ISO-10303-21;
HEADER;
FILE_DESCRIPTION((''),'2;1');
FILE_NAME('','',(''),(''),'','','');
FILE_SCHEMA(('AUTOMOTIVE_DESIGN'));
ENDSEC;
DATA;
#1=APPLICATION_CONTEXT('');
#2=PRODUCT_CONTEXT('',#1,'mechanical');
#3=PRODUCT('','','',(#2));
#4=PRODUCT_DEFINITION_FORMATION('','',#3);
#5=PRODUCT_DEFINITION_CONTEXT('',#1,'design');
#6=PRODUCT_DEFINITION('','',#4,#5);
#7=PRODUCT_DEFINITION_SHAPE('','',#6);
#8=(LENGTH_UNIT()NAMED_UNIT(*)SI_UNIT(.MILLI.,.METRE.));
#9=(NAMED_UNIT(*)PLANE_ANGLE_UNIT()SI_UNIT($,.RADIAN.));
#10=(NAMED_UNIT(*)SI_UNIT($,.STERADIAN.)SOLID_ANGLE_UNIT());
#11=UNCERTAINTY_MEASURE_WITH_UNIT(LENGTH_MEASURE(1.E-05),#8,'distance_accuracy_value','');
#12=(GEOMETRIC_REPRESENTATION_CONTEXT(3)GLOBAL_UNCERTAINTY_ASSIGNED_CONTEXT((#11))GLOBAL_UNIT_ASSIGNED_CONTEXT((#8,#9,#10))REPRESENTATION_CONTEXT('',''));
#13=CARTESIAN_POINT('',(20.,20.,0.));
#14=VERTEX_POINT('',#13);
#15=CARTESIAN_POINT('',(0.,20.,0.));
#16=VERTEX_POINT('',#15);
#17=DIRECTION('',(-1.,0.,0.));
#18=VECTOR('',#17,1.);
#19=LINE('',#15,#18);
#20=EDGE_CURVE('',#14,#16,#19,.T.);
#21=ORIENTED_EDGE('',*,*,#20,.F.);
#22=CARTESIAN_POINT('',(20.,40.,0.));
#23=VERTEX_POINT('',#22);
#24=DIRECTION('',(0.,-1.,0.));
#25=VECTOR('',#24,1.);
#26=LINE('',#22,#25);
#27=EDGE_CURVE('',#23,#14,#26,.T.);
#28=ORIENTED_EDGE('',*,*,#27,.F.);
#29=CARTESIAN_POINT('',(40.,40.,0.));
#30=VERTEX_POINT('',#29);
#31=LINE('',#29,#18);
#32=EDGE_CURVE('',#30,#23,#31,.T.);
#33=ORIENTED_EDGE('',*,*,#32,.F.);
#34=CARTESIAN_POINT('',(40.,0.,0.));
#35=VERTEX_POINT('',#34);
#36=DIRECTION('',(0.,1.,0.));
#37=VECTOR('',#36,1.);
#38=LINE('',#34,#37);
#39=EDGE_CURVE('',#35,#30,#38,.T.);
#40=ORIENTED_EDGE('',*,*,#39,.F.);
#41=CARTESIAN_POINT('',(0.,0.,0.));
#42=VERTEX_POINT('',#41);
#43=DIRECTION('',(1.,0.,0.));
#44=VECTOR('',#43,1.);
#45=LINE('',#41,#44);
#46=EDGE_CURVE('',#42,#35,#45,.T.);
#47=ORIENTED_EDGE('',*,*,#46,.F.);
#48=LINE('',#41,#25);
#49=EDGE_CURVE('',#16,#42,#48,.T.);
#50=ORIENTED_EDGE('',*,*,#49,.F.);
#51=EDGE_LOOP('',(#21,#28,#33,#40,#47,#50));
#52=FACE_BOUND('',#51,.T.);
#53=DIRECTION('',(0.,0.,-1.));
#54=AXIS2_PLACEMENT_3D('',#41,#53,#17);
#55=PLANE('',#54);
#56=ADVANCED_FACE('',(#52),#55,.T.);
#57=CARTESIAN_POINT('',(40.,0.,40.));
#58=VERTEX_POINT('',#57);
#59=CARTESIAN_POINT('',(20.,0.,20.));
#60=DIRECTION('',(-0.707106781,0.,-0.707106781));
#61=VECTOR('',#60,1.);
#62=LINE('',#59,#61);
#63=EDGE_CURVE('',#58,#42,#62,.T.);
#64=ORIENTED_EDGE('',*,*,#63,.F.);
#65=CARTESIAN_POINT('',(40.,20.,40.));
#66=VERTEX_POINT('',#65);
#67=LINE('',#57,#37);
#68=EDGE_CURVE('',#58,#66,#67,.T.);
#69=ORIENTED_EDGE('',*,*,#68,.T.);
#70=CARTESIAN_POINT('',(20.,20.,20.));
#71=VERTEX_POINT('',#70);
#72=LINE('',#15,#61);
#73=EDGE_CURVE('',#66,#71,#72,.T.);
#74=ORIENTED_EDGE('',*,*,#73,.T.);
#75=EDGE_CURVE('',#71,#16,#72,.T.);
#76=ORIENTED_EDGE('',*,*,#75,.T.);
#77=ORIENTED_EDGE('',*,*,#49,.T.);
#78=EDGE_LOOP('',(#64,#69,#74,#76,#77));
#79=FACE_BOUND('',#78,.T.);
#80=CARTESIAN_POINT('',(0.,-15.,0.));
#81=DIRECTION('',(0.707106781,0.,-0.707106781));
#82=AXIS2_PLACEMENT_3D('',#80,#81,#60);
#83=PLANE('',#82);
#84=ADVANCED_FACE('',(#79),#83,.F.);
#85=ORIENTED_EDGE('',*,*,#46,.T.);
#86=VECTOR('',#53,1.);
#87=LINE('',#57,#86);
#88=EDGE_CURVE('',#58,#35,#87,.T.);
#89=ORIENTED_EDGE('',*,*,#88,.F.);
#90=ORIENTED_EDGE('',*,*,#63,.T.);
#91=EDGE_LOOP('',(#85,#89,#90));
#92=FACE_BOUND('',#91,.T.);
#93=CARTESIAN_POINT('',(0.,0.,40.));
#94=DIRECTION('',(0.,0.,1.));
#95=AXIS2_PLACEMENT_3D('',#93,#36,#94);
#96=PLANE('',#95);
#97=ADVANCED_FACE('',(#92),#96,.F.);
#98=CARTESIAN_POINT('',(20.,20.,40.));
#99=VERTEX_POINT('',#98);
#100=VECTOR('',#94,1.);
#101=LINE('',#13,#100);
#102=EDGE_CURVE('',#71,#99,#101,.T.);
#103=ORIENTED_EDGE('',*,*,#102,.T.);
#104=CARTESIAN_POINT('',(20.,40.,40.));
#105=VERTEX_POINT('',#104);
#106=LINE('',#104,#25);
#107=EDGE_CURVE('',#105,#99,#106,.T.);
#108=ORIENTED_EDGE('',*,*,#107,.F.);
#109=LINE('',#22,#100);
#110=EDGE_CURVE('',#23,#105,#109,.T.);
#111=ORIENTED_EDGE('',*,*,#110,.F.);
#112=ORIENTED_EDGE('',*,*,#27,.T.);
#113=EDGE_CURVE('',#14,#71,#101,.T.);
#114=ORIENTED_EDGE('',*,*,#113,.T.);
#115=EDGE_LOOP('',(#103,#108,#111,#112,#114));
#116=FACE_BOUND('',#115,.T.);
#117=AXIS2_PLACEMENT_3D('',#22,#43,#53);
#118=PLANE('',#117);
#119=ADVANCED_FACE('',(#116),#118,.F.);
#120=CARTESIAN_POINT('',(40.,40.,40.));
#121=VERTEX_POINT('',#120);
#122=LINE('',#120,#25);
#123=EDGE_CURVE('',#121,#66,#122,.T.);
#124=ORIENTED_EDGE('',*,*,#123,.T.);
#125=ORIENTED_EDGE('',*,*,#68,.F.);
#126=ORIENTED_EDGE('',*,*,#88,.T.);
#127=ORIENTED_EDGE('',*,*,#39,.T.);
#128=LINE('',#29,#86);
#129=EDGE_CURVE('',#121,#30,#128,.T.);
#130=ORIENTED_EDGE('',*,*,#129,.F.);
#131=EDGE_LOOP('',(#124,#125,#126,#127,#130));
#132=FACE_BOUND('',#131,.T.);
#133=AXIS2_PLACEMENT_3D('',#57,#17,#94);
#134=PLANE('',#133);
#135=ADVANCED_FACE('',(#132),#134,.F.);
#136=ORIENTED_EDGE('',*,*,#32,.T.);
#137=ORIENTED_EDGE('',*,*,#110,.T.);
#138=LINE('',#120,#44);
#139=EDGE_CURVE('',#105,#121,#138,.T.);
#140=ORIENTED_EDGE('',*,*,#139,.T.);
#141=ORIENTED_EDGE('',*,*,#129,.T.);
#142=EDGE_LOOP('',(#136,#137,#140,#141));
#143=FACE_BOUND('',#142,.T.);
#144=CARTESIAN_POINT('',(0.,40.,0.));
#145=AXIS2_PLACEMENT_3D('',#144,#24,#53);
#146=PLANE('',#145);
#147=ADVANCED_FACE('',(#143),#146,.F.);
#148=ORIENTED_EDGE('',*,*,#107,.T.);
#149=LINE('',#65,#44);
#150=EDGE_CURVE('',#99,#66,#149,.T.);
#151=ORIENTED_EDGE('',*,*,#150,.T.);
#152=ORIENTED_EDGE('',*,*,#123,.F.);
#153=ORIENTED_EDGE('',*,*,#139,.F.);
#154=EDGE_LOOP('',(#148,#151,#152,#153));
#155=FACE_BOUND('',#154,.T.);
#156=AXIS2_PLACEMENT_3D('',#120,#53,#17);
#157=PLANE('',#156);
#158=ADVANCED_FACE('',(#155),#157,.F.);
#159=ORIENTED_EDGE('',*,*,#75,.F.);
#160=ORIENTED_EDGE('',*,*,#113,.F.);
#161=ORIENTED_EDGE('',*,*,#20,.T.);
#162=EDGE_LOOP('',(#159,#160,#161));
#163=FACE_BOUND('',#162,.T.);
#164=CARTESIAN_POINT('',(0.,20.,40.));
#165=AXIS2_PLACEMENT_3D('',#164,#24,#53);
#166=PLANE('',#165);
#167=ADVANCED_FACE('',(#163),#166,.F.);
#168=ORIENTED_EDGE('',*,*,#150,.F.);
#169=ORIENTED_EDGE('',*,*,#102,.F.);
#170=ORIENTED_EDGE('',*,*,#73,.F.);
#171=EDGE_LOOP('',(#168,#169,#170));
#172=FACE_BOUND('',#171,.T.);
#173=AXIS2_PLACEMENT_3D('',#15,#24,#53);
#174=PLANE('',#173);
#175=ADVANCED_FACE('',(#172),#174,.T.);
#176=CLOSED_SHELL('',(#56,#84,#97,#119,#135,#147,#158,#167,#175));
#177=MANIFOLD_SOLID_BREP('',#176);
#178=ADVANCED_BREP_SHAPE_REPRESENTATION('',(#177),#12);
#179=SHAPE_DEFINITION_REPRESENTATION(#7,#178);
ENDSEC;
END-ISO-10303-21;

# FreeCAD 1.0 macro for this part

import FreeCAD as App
import Part
import Sketcher

V = App.Vector

doc = App.newDocument("Part")
body = doc.addObject("PartDesign::Body", "Body")

# Sketch on XY plane
sketch1 = body.newObject("Sketcher::SketchObject", "Sketch")
sketch1.AttachmentSupport = (doc.getObject("XY_Plane"), [""])
sketch1.MapMode = "FlatFace"
sketch1.addGeometry([
    Part.LineSegment(V(0, 20, 0), V(0, 0, 0)),
    Part.LineSegment(V(0, 0, 0), V(40, 0, 0)),
    Part.LineSegment(V(40, 0, 0), V(40, 20, 0)),
    Part.LineSegment(V(40, 20, 0), V(0, 20, 0)),
], False)
sketch1.addConstraint([
    Sketcher.Constraint("Coincident", 0, 2, 1, 1),
    Sketcher.Constraint("Coincident", 1, 2, 2, 1),
    Sketcher.Constraint("Coincident", 2, 2, 3, 1),
    Sketcher.Constraint("Coincident", 3, 2, 0, 1),
    Sketcher.Constraint("Vertical", 0),
    Sketcher.Constraint("Horizontal", 1),
    Sketcher.Constraint("Vertical", 2),
    Sketcher.Constraint("Horizontal", 3),
    Sketcher.Constraint("Coincident", 0, 2, -1, 1),
    Sketcher.Constraint("DistanceX", 1, 1, 1, 2, 40.0),
    Sketcher.Constraint("DistanceY", 0, 2, 0, 1, 20.0),
])
pad1 = body.newObject("PartDesign::Pad", "Pad")
pad1.Profile = sketch1
pad1.Length = 40

# Sketch on XY plane
sketch2 = body.newObject("Sketcher::SketchObject", "Sketch001")
sketch2.AttachmentSupport = (doc.getObject("XY_Plane"), [""])
sketch2.MapMode = "FlatFace"
sketch2.AttachmentOffset = App.Placement(V(0, 0, 40), App.Rotation())
sketch2.addGeometry([
    Part.LineSegment(V(20, 40, 0), V(20, 20, 0)),
    Part.LineSegment(V(20, 20, 0), V(40, 20, 0)),
    Part.LineSegment(V(40, 20, 0), V(40, 40, 0)),
    Part.LineSegment(V(40, 40, 0), V(20, 40, 0)),
], False)
sketch2.addConstraint([
    Sketcher.Constraint("Coincident", 0, 2, 1, 1),
    Sketcher.Constraint("Coincident", 1, 2, 2, 1),
    Sketcher.Constraint("Coincident", 2, 2, 3, 1),
    Sketcher.Constraint("Coincident", 3, 2, 0, 1),
    Sketcher.Constraint("Vertical", 0),
    Sketcher.Constraint("Horizontal", 1),
    Sketcher.Constraint("Vertical", 2),
    Sketcher.Constraint("Horizontal", 3),
    Sketcher.Constraint("Equal", 3, 0),
    Sketcher.Constraint("DistanceX", 1, 1, 1, 2, 20.0),
    Sketcher.Constraint("DistanceX", -1, 1, 0, 2, 20.0),
    Sketcher.Constraint("DistanceY", -1, 1, 0, 2, 20.0),
])
pad2 = body.newObject("PartDesign::Pad", "Pad001")
pad2.Profile = sketch2
pad2.Length = 40
pad2.Reversed = True

# Sketch on XZ plane
sketch3 = body.newObject("Sketcher::SketchObject", "Sketch002")
sketch3.AttachmentSupport = (doc.getObject("XZ_Plane"), [""])
sketch3.MapMode = "FlatFace"
sketch3.AttachmentOffset = App.Placement(V(0, 0, -40), App.Rotation())
sketch3.addGeometry([
    Part.LineSegment(V(40, 20, 0), V(20, 40, 0)),
    Part.LineSegment(V(20, 40, 0), V(40, 40, 0)),
    Part.LineSegment(V(40, 40, 0), V(40, 20, 0)),
], False)
sketch3.addConstraint([
    Sketcher.Constraint("Coincident", 0, 2, 1, 1),
    Sketcher.Constraint("Coincident", 1, 2, 2, 1),
    Sketcher.Constraint("Coincident", 2, 2, 0, 1),
    Sketcher.Constraint("Horizontal", 1),
    Sketcher.Constraint("Vertical", 2),
    Sketcher.Constraint("Equal", 1, 2),
    Sketcher.Constraint("DistanceX", 1, 1, 1, 2, 20.0),
    Sketcher.Constraint("DistanceX", -1, 1, 0, 2, 20.0),
    Sketcher.Constraint("DistanceY", -1, 1, 0, 2, 40.0),
])
pocket1 = body.newObject("PartDesign::Pocket", "Pocket")
pocket1.Profile = sketch3
pocket1.Length = 20
pocket1.Reversed = True

# Sketch on YZ plane
sketch4 = body.newObject("Sketcher::SketchObject", "Sketch003")
sketch4.AttachmentSupport = (doc.getObject("YZ_Plane"), [""])
sketch4.MapMode = "FlatFace"
sketch4.AttachmentOffset = App.Placement(V(0, 0, 20), App.Rotation())
sketch4.addGeometry([
    Part.LineSegment(V(40, 0, 0), V(20, 0, 0)),
    Part.LineSegment(V(20, 0, 0), V(20, 40, 0)),
    Part.LineSegment(V(20, 40, 0), V(40, 40, 0)),
    Part.LineSegment(V(40, 40, 0), V(40, 0, 0)),
], False)
sketch4.addConstraint([
    Sketcher.Constraint("Coincident", 0, 2, 1, 1),
    Sketcher.Constraint("Coincident", 1, 2, 2, 1),
    Sketcher.Constraint("Coincident", 2, 2, 3, 1),
    Sketcher.Constraint("Coincident", 3, 2, 0, 1),
    Sketcher.Constraint("Horizontal", 0),
    Sketcher.Constraint("Vertical", 1),
    Sketcher.Constraint("Horizontal", 2),
    Sketcher.Constraint("Vertical", 3),
    Sketcher.Constraint("PointOnObject", 0, 2, -1),
    Sketcher.Constraint("DistanceX", 0, 2, 0, 1, 20.0),
    Sketcher.Constraint("DistanceY", 1, 1, 1, 2, 40.0),
    Sketcher.Constraint("DistanceX", -1, 1, 0, 2, 20.0),
])
pocket2 = body.newObject("PartDesign::Pocket", "Pocket001")
pocket2.Profile = sketch4
pocket2.Length = 35
pocket2.Reversed = True

# Sketch on XZ plane
sketch5 = body.newObject("Sketcher::SketchObject", "Sketch004")
sketch5.AttachmentSupport = (doc.getObject("XZ_Plane"), [""])
sketch5.MapMode = "FlatFace"
sketch5.AttachmentOffset = App.Placement(V(0, 0, -20), App.Rotation())
sketch5.addGeometry([
    Part.LineSegment(V(40, 40, 0), V(0, 0, 0)),
    Part.LineSegment(V(0, 0, 0), V(0, 40, 0)),
    Part.LineSegment(V(0, 40, 0), V(40, 40, 0)),
], False)
sketch5.addConstraint([
    Sketcher.Constraint("Coincident", 0, 2, 1, 1),
    Sketcher.Constraint("Coincident", 1, 2, 2, 1),
    Sketcher.Constraint("Coincident", 2, 2, 0, 1),
    Sketcher.Constraint("Vertical", 1),
    Sketcher.Constraint("Horizontal", 2),
    Sketcher.Constraint("Coincident", 0, 2, -1, 1),
    Sketcher.Constraint("Equal", 2, 1),
    Sketcher.Constraint("DistanceX", 2, 1, 2, 2, 40.0),
])
pocket3 = body.newObject("PartDesign::Pocket", "Pocket002")
pocket3.Profile = sketch5
pocket3.Length = 35
pocket3.Reversed = True

# Sketch on XZ plane
sketch6 = body.newObject("Sketcher::SketchObject", "Sketch005")
sketch6.AttachmentSupport = (doc.getObject("XZ_Plane"), [""])
sketch6.MapMode = "FlatFace"
sketch6.AttachmentOffset = App.Placement(V(0, 0, -20), App.Rotation())
sketch6.addGeometry([
    Part.LineSegment(V(20, 0, 0), V(20, 40, 0)),
    Part.LineSegment(V(20, 40, 0), V(40, 40, 0)),
    Part.LineSegment(V(40, 40, 0), V(40, 0, 0)),
    Part.LineSegment(V(40, 0, 0), V(20, 0, 0)),
], False)
sketch6.addConstraint([
    Sketcher.Constraint("Coincident", 0, 2, 1, 1),
    Sketcher.Constraint("Coincident", 1, 2, 2, 1),
    Sketcher.Constraint("Coincident", 2, 2, 3, 1),
    Sketcher.Constraint("Coincident", 3, 2, 0, 1),
    Sketcher.Constraint("Vertical", 0),
    Sketcher.Constraint("Horizontal", 1),
    Sketcher.Constraint("Vertical", 2),
    Sketcher.Constraint("Horizontal", 3),
    Sketcher.Constraint("PointOnObject", 2, 2, -1),
    Sketcher.Constraint("DistanceX", 1, 1, 1, 2, 20.0),
    Sketcher.Constraint("DistanceY", 0, 1, 0, 2, 40.0),
    Sketcher.Constraint("DistanceX", -1, 1, 0, 2, 20.0),
])
pad3 = body.newObject("PartDesign::Pad", "Pad002")
pad3.Profile = sketch6
pad3.Length = 20
pad3.Reversed = True

doc.recompute()
